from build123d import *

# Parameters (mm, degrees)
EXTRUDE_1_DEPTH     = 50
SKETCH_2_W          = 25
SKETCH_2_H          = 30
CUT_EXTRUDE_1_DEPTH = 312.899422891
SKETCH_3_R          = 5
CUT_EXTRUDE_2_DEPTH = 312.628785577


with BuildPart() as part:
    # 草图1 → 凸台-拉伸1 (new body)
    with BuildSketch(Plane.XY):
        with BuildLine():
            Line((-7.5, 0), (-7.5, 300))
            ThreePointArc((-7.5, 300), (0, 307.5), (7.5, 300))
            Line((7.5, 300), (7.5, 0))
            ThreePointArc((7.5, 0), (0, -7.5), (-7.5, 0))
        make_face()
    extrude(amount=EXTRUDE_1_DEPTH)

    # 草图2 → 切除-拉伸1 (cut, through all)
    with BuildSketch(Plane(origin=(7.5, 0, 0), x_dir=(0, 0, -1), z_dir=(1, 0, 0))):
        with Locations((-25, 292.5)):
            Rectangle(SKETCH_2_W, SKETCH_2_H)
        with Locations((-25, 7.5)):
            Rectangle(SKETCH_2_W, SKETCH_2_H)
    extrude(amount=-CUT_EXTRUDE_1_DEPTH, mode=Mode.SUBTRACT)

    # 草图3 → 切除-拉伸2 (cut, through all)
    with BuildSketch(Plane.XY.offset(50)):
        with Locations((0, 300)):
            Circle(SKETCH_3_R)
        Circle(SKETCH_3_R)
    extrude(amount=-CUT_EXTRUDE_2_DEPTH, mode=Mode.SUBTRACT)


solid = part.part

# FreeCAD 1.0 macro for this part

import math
import FreeCAD as App
import Part
import Sketcher

V = App.Vector


def add_polygon(sketch, points):
    """Adds a closed chain of lines whose ends are joined by coincident constraints."""
    first, n = sketch.GeometryCount, len(points)
    for a, b in zip(points, points[1:] + points[:1]):
        sketch.addGeometry(Part.LineSegment(App.Vector(*a, 0), App.Vector(*b, 0)), False)
    for i in range(n):
        sketch.addConstraint(Sketcher.Constraint("Coincident", first + i, 2, first + (i + 1) % n, 1))

doc = App.newDocument("Part")
params = doc.addObject("Spreadsheet::Sheet", "Params")
for row, (alias, value) in enumerate([
    ("sketch1_radius", "7.5 mm"),
    ("sketch1_height", "300 mm"),
    ("pad1_length", "50 mm"),
    ("sketch2_width", "30 mm"),
    ("sketch2_height", "25 mm"),
    ("sketch3_diameter", "10 mm"),
], start=1):
    params.set(f"A{row}", alias)
    params.set(f"B{row}", "=" + value)
    params.setAlias(f"B{row}", alias)

body = doc.addObject("PartDesign::Body", "Body")

sketch1 = body.newObject("Sketcher::SketchObject", "Sketch")
sketch1.AttachmentSupport = (doc.getObject("XY_Plane"), [""])
sketch1.MapMode = "FlatFace"
sketch1.addGeometry(Part.LineSegment(V(-8, 300, 0), V(-8, 0, 0)), False)
sketch1.addGeometry(Part.ArcOfCircle(Part.Circle(V(0, 0, 0), V(0, 0, 1), 8), math.radians(180), math.radians(360)), False)
sketch1.addGeometry(Part.LineSegment(V(8, 0, 0), V(8, 300, 0)), False)
sketch1.addGeometry(Part.ArcOfCircle(Part.Circle(V(0, 300, 0), V(0, 0, 1), 8), math.radians(0), math.radians(180)), False)
sketch1.addConstraint(Sketcher.Constraint("Tangent", 0, 2, 1, 1))
sketch1.addConstraint(Sketcher.Constraint("Tangent", 1, 2, 2, 1))
sketch1.addConstraint(Sketcher.Constraint("Tangent", 2, 2, 3, 1))
sketch1.addConstraint(Sketcher.Constraint("Tangent", 3, 2, 0, 1))
sketch1.addConstraint(Sketcher.Constraint("Vertical", 0))
sketch1.addConstraint(Sketcher.Constraint("Vertical", 2))
sketch1.addConstraint(Sketcher.Constraint("Coincident", 1, 3, -1, 1))
sketch1.addConstraint(Sketcher.Constraint("Radius", 1, 7.5))
sketch1.addConstraint(Sketcher.Constraint("DistanceY", 0, 2, 0, 1, 300.0))
sketch1.setExpression("Constraints[7]", "Params.sketch1_radius")
sketch1.setExpression("Constraints[8]", "Params.sketch1_height")
pad1 = body.newObject("PartDesign::Pad", "Pad")
pad1.Profile = sketch1
pad1.setExpression("Length", "Params.pad1_length")

sketch2 = body.newObject("Sketcher::SketchObject", "Sketch001")
sketch2.AttachmentSupport = (doc.getObject("YZ_Plane"), [""])
sketch2.MapMode = "FlatFace"
sketch2.AttachmentOffset = App.Placement(V(0, 0, 7.5), App.Rotation())
add_polygon(sketch2, [(308, 38), (278, 38), (278, 12), (308, 12)])
add_polygon(sketch2, [(22, 38), (-8, 38), (-8, 12), (22, 12)])
sketch2.addConstraint(Sketcher.Constraint("Horizontal", 0))
sketch2.addConstraint(Sketcher.Constraint("Vertical", 1))
sketch2.addConstraint(Sketcher.Constraint("Horizontal", 2))
sketch2.addConstraint(Sketcher.Constraint("Vertical", 3))
sketch2.addConstraint(Sketcher.Constraint("Horizontal", 4))
sketch2.addConstraint(Sketcher.Constraint("Vertical", 5))
sketch2.addConstraint(Sketcher.Constraint("Horizontal", 6))
sketch2.addConstraint(Sketcher.Constraint("Vertical", 7))
sketch2.addConstraint(Sketcher.Constraint("Horizontal", 3, 2, 4, 2))
sketch2.addConstraint(Sketcher.Constraint("Horizontal", 2, 2, 5, 2))
sketch2.addConstraint(Sketcher.Constraint("Equal", 2, 4))
sketch2.addConstraint(Sketcher.Constraint("DistanceX", 0, 2, 0, 1, 30.0))
sketch2.addConstraint(Sketcher.Constraint("DistanceY", 1, 2, 1, 1, 25.0))
sketch2.addConstraint(Sketcher.Constraint("DistanceX", 4, 2, 0, 2, 285.0))
sketch2.addConstraint(Sketcher.Constraint("DistanceX", -1, 1, 0, 2, 277.5))
sketch2.addConstraint(Sketcher.Constraint("DistanceY", -1, 1, 0, 2, 37.5))
sketch2.setExpression("Constraints[19]", "Params.sketch2_width")
sketch2.setExpression("Constraints[20]", "Params.sketch2_height")
pocket1 = body.newObject("PartDesign::Pocket", "Pocket")
pocket1.Profile = sketch2
pocket1.Type = "ThroughAll"

sketch3 = body.newObject("Sketcher::SketchObject", "Sketch002")
sketch3.AttachmentSupport = (doc.getObject("XY_Plane"), [""])
sketch3.MapMode = "FlatFace"
sketch3.AttachmentOffset = App.Placement(V(0, 0, 50), App.Rotation())
sketch3.addGeometry(Part.Circle(V(0, 300, 0), V(0, 0, 1), 5), False)
sketch3.addGeometry(Part.Circle(V(0, 0, 0), V(0, 0, 1), 5), False)
sketch3.addConstraint(Sketcher.Constraint("Coincident", 1, 3, -1, 1))
sketch3.addConstraint(Sketcher.Constraint("Equal", 0, 1))
sketch3.addConstraint(Sketcher.Constraint("PointOnObject", 0, 3, -2))
sketch3.addConstraint(Sketcher.Constraint("Diameter", 0, 10.0))
sketch3.addConstraint(Sketcher.Constraint("DistanceY", -1, 1, 0, 3, 300.0))
sketch3.setExpression("Constraints[3]", "Params.sketch3_diameter")
pocket2 = body.newObject("PartDesign::Pocket", "Pocket001")
pocket2.Profile = sketch3
pocket2.Type = "ThroughAll"

doc.recompute()
